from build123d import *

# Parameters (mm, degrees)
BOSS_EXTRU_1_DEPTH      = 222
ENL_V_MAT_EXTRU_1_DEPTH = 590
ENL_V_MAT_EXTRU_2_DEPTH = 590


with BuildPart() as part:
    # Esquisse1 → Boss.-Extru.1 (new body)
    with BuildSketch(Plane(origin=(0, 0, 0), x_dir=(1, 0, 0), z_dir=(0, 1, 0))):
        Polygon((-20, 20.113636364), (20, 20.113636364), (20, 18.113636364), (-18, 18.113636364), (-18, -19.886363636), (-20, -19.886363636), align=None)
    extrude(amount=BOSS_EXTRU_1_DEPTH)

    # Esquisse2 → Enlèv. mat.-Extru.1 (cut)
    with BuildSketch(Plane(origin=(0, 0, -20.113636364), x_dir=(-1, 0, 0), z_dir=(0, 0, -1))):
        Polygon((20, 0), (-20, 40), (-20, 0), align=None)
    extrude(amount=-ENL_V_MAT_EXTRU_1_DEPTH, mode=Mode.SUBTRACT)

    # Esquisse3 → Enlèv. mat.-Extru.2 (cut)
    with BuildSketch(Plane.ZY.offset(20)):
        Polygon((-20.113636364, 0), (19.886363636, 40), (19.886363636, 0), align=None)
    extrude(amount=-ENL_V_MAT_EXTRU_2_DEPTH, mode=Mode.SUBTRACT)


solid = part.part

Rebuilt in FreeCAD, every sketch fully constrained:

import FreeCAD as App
import Part
import Sketcher
from FreeCAD import Vector

doc = App.newDocument("Part")
params = doc.addObject("Spreadsheet::Sheet", "Params")
for row, (alias, value) in enumerate([
    ("sketch1_width", "40 mm"),
    ("sketch1_width2", "2 mm"),
    ("pad1_length", "222 mm"),
    ("sketch2_width", "40 mm"),
    ("pocket1_length", "590 mm"),
    ("sketch3_width", "40 mm"),
    ("pocket2_length", "590 mm"),
], start=1):
    params.set(f"A{row}", alias)
    params.set(f"B{row}", "=" + value)
    params.setAlias(f"B{row}", alias)

body = doc.addObject("PartDesign::Body", "Body")

# Sketch on XZ plane
sketch1 = doc.addObject("Sketcher::SketchObject", "Sketch")
body.addObject(sketch1)
sketch1.AttachmentSupport = (doc.XZ_Plane, [""])
sketch1.MapMode = "FlatFace"
sketch1.addGeometry(Part.LineSegment(Vector(20, -20.1, 0), Vector(-20, -20.1, 0)), False)
sketch1.addGeometry(Part.LineSegment(Vector(-20, -20.1, 0), Vector(-20, 19.9, 0)), False)
sketch1.addGeometry(Part.LineSegment(Vector(-20, 19.9, 0), Vector(-18, 19.9, 0)), False)
sketch1.addGeometry(Part.LineSegment(Vector(-18, 19.9, 0), Vector(-18, -18.1, 0)), False)
sketch1.addGeometry(Part.LineSegment(Vector(-18, -18.1, 0), Vector(20, -18.1, 0)), False)
sketch1.addGeometry(Part.LineSegment(Vector(20, -18.1, 0), Vector(20, -20.1, 0)), False)
sketch1.addConstraint(Sketcher.Constraint("Coincident", 0, 2, 1, 1))
sketch1.addConstraint(Sketcher.Constraint("Coincident", 1, 2, 2, 1))
sketch1.addConstraint(Sketcher.Constraint("Coincident", 2, 2, 3, 1))
sketch1.addConstraint(Sketcher.Constraint("Coincident", 3, 2, 4, 1))
sketch1.addConstraint(Sketcher.Constraint("Coincident", 4, 2, 5, 1))
sketch1.addConstraint(Sketcher.Constraint("Coincident", 5, 2, 0, 1))
sketch1.addConstraint(Sketcher.Constraint("Horizontal", 0))
sketch1.addConstraint(Sketcher.Constraint("Vertical", 1))
sketch1.addConstraint(Sketcher.Constraint("Horizontal", 2))
sketch1.addConstraint(Sketcher.Constraint("Vertical", 3))
sketch1.addConstraint(Sketcher.Constraint("Horizontal", 4))
sketch1.addConstraint(Sketcher.Constraint("Vertical", 5))
sketch1.addConstraint(Sketcher.Constraint("Equal", 0, 1))
sketch1.addConstraint(Sketcher.Constraint("Equal", 4, 3))
sketch1.addConstraint(Sketcher.Constraint("DistanceX", 0, 2, 0, 1, 40.0))
sketch1.addConstraint(Sketcher.Constraint("DistanceX", 2, 1, 2, 2, 2.0))
sketch1.addConstraint(Sketcher.Constraint("DistanceX", 0, 2, -1, 1, 20.0))
sketch1.addConstraint(Sketcher.Constraint("DistanceY", 0, 2, -1, 1, 20.113636))
sketch1.setExpression("Constraints[14]", "Params.sketch1_width")
sketch1.setExpression("Constraints[15]", "Params.sketch1_width2")
pad1 = doc.addObject("PartDesign::Pad", "Pad")
body.addObject(pad1)
pad1.Profile = sketch1
pad1.setExpression("Length", "Params.pad1_length")
pad1.Reversed = True

# Sketch on XY plane
sketch2 = doc.addObject("Sketcher::SketchObject", "Sketch001")
body.addObject(sketch2)
sketch2.AttachmentSupport = (doc.XY_Plane, [""])
sketch2.MapMode = "FlatFace"
sketch2.AttachmentOffset = App.Placement(Vector(0, 0, -20.113636), App.Rotation())
sketch2.addGeometry(Part.LineSegment(Vector(-20, 0, 0), Vector(20, 40, 0)), False)
sketch2.addGeometry(Part.LineSegment(Vector(20, 40, 0), Vector(20, 0, 0)), False)
sketch2.addGeometry(Part.LineSegment(Vector(20, 0, 0), Vector(-20, 0, 0)), False)
sketch2.addConstraint(Sketcher.Constraint("Coincident", 0, 2, 1, 1))
sketch2.addConstraint(Sketcher.Constraint("Coincident", 1, 2, 2, 1))
sketch2.addConstraint(Sketcher.Constraint("Coincident", 2, 2, 0, 1))
sketch2.addConstraint(Sketcher.Constraint("Vertical", 1))
sketch2.addConstraint(Sketcher.Constraint("Horizontal", 2))
sketch2.addConstraint(Sketcher.Constraint("Symmetric", 1, 2, 2, 2, -1, 1))
sketch2.addConstraint(Sketcher.Constraint("Equal", 2, 1))
sketch2.addConstraint(Sketcher.Constraint("DistanceX", 2, 2, 2, 1, 40.0))
sketch2.setExpression("Constraints[7]", "Params.sketch2_width")
pocket1 = doc.addObject("PartDesign::Pocket", "Pocket")
body.addObject(pocket1)
pocket1.Profile = sketch2
pocket1.setExpression("Length", "Params.pocket1_length")
pocket1.Reversed = True

# Sketch on YZ plane
sketch3 = doc.addObject("Sketcher::SketchObject", "Sketch002")
body.addObject(sketch3)
sketch3.AttachmentSupport = (doc.YZ_Plane, [""])
sketch3.MapMode = "FlatFace"
sketch3.AttachmentOffset = App.Placement(Vector(0, 0, -20), App.Rotation())
sketch3.addGeometry(Part.LineSegment(Vector(40, 20, 0), Vector(0, -20, 0)), False)
sketch3.addGeometry(Part.LineSegment(Vector(0, -20, 0), Vector(0, 20, 0)), False)
sketch3.addGeometry(Part.LineSegment(Vector(0, 20, 0), Vector(40, 20, 0)), False)
sketch3.addConstraint(Sketcher.Constraint("Coincident", 0, 2, 1, 1))
sketch3.addConstraint(Sketcher.Constraint("Coincident", 1, 2, 2, 1))
sketch3.addConstraint(Sketcher.Constraint("Coincident", 2, 2, 0, 1))
sketch3.addConstraint(Sketcher.Constraint("Vertical", 1))
sketch3.addConstraint(Sketcher.Constraint("Horizontal", 2))
sketch3.addConstraint(Sketcher.Constraint("PointOnObject", 0, 2, -2))
sketch3.addConstraint(Sketcher.Constraint("Equal", 2, 1))
sketch3.addConstraint(Sketcher.Constraint("DistanceX", 2, 1, 2, 2, 40.0))
sketch3.addConstraint(Sketcher.Constraint("DistanceY", 0, 2, -1, 1, 20.113636))
sketch3.setExpression("Constraints[7]", "Params.sketch3_width")
pocket2 = doc.addObject("PartDesign::Pocket", "Pocket001")
body.addObject(pocket2)
pocket2.Profile = sketch3
pocket2.setExpression("Length", "Params.pocket2_length")
pocket2.Reversed = True

doc.recompute()
